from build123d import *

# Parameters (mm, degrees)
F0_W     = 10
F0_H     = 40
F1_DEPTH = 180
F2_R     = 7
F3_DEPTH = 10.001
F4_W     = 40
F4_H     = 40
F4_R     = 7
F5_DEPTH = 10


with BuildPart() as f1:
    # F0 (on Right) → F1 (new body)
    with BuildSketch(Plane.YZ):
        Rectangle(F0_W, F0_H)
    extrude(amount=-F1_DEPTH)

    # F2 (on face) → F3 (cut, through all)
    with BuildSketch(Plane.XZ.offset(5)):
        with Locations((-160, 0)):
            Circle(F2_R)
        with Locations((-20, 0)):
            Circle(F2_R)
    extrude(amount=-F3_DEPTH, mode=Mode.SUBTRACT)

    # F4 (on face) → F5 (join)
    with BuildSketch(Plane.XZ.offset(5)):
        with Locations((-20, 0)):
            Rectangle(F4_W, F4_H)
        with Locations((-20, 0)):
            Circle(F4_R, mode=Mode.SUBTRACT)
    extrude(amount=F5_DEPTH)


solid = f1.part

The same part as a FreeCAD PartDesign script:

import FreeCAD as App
import Part
import Sketcher

V = App.Vector


def add_polygon(sketch, points):
    """Adds a closed chain of lines whose ends are joined by coincident constraints."""
    first, n = sketch.GeometryCount, len(points)
    for a, b in zip(points, points[1:] + points[:1]):
        sketch.addGeometry(Part.LineSegment(App.Vector(*a, 0), App.Vector(*b, 0)), False)
    for i in range(n):
        sketch.addConstraint(Sketcher.Constraint("Coincident", first + i, 2, first + (i + 1) % n, 1))

doc = App.newDocument("Part")
body = doc.addObject("PartDesign::Body", "Body")

sketch1 = body.newObject("Sketcher::SketchObject", "Sketch")
sketch1.AttachmentSupport = (doc.getObject("YZ_Plane"), [""])
sketch1.MapMode = "FlatFace"
add_polygon(sketch1, [(-5, 20), (-5, -20), (5, -20), (5, 20)])
sketch1.addConstraint(Sketcher.Constraint("Vertical", 0))
sketch1.addConstraint(Sketcher.Constraint("Horizontal", 1))
sketch1.addConstraint(Sketcher.Constraint("Vertical", 2))
sketch1.addConstraint(Sketcher.Constraint("Horizontal", 3))
sketch1.addConstraint(Sketcher.Constraint("Symmetric", 0, 2, 2, 2, -1, 1))
sketch1.addConstraint(Sketcher.Constraint("DistanceX", 1, 1, 1, 2, 10.0))
sketch1.addConstraint(Sketcher.Constraint("DistanceY", 0, 2, 0, 1, 40.0))
pad1 = body.newObject("PartDesign::Pad", "Pad")
pad1.Profile = sketch1
pad1.Length = 180
pad1.Reversed = True

sketch2 = body.newObject("Sketcher::SketchObject", "Sketch001")
sketch2.AttachmentSupport = (doc.getObject("XZ_Plane"), [""])
sketch2.MapMode = "FlatFace"
sketch2.AttachmentOffset = App.Placement(V(0, 0, 5), App.Rotation())
sketch2.addGeometry(Part.Circle(V(-160, 0, 0), V(0, 0, 1), 7), False)
sketch2.addGeometry(Part.Circle(V(-20, 0, 0), V(0, 0, 1), 7), False)
sketch2.addConstraint(Sketcher.Constraint("Equal", 0, 1))
sketch2.addConstraint(Sketcher.Constraint("PointOnObject", 0, 3, -1))
sketch2.addConstraint(Sketcher.Constraint("PointOnObject", 1, 3, -1))
sketch2.addConstraint(Sketcher.Constraint("Diameter", 0, 14.0))
sketch2.addConstraint(Sketcher.Constraint("DistanceX", 0, 3, -1, 1, 160.0))
sketch2.addConstraint(Sketcher.Constraint("DistanceX", 1, 3, -1, 1, 20.0))
pocket1 = body.newObject("PartDesign::Pocket", "Pocket")
pocket1.Profile = sketch2
pocket1.Type = "ThroughAll"

sketch3 = body.newObject("Sketcher::SketchObject", "Sketch002")
sketch3.AttachmentSupport = (doc.getObject("XZ_Plane"), [""])
sketch3.MapMode = "FlatFace"
sketch3.AttachmentOffset = App.Placement(V(0, 0, 5), App.Rotation())
add_polygon(sketch3, [(-40, 20), (-40, -20), (0, -20), (0, 20)])
sketch3.addGeometry(Part.Circle(V(-20, 0, 0), V(0, 0, 1), 7), False)
sketch3.addConstraint(Sketcher.Constraint("Vertical", 0))
sketch3.addConstraint(Sketcher.Constraint("Horizontal", 1))
sketch3.addConstraint(Sketcher.Constraint("Vertical", 2))
sketch3.addConstraint(Sketcher.Constraint("Horizontal", 3))
sketch3.addConstraint(Sketcher.Constraint("Symmetric", 1, 2, 2, 2, -1, 1))
sketch3.addConstraint(Sketcher.Constraint("PointOnObject", 4, 3, -1))
sketch3.addConstraint(Sketcher.Constraint("Equal", 3, 0))
sketch3.addConstraint(Sketcher.Constraint("Diameter", 4, 14.0))
sketch3.addConstraint(Sketcher.Constraint("DistanceX", 1, 1, 1, 2, 40.0))
sketch3.addConstraint(Sketcher.Constraint("DistanceX", 4, 3, -1, 1, 20.0))
pad2 = body.newObject("PartDesign::Pad", "Pad001")
pad2.Profile = sketch3
pad2.Length = 10

doc.recompute()
